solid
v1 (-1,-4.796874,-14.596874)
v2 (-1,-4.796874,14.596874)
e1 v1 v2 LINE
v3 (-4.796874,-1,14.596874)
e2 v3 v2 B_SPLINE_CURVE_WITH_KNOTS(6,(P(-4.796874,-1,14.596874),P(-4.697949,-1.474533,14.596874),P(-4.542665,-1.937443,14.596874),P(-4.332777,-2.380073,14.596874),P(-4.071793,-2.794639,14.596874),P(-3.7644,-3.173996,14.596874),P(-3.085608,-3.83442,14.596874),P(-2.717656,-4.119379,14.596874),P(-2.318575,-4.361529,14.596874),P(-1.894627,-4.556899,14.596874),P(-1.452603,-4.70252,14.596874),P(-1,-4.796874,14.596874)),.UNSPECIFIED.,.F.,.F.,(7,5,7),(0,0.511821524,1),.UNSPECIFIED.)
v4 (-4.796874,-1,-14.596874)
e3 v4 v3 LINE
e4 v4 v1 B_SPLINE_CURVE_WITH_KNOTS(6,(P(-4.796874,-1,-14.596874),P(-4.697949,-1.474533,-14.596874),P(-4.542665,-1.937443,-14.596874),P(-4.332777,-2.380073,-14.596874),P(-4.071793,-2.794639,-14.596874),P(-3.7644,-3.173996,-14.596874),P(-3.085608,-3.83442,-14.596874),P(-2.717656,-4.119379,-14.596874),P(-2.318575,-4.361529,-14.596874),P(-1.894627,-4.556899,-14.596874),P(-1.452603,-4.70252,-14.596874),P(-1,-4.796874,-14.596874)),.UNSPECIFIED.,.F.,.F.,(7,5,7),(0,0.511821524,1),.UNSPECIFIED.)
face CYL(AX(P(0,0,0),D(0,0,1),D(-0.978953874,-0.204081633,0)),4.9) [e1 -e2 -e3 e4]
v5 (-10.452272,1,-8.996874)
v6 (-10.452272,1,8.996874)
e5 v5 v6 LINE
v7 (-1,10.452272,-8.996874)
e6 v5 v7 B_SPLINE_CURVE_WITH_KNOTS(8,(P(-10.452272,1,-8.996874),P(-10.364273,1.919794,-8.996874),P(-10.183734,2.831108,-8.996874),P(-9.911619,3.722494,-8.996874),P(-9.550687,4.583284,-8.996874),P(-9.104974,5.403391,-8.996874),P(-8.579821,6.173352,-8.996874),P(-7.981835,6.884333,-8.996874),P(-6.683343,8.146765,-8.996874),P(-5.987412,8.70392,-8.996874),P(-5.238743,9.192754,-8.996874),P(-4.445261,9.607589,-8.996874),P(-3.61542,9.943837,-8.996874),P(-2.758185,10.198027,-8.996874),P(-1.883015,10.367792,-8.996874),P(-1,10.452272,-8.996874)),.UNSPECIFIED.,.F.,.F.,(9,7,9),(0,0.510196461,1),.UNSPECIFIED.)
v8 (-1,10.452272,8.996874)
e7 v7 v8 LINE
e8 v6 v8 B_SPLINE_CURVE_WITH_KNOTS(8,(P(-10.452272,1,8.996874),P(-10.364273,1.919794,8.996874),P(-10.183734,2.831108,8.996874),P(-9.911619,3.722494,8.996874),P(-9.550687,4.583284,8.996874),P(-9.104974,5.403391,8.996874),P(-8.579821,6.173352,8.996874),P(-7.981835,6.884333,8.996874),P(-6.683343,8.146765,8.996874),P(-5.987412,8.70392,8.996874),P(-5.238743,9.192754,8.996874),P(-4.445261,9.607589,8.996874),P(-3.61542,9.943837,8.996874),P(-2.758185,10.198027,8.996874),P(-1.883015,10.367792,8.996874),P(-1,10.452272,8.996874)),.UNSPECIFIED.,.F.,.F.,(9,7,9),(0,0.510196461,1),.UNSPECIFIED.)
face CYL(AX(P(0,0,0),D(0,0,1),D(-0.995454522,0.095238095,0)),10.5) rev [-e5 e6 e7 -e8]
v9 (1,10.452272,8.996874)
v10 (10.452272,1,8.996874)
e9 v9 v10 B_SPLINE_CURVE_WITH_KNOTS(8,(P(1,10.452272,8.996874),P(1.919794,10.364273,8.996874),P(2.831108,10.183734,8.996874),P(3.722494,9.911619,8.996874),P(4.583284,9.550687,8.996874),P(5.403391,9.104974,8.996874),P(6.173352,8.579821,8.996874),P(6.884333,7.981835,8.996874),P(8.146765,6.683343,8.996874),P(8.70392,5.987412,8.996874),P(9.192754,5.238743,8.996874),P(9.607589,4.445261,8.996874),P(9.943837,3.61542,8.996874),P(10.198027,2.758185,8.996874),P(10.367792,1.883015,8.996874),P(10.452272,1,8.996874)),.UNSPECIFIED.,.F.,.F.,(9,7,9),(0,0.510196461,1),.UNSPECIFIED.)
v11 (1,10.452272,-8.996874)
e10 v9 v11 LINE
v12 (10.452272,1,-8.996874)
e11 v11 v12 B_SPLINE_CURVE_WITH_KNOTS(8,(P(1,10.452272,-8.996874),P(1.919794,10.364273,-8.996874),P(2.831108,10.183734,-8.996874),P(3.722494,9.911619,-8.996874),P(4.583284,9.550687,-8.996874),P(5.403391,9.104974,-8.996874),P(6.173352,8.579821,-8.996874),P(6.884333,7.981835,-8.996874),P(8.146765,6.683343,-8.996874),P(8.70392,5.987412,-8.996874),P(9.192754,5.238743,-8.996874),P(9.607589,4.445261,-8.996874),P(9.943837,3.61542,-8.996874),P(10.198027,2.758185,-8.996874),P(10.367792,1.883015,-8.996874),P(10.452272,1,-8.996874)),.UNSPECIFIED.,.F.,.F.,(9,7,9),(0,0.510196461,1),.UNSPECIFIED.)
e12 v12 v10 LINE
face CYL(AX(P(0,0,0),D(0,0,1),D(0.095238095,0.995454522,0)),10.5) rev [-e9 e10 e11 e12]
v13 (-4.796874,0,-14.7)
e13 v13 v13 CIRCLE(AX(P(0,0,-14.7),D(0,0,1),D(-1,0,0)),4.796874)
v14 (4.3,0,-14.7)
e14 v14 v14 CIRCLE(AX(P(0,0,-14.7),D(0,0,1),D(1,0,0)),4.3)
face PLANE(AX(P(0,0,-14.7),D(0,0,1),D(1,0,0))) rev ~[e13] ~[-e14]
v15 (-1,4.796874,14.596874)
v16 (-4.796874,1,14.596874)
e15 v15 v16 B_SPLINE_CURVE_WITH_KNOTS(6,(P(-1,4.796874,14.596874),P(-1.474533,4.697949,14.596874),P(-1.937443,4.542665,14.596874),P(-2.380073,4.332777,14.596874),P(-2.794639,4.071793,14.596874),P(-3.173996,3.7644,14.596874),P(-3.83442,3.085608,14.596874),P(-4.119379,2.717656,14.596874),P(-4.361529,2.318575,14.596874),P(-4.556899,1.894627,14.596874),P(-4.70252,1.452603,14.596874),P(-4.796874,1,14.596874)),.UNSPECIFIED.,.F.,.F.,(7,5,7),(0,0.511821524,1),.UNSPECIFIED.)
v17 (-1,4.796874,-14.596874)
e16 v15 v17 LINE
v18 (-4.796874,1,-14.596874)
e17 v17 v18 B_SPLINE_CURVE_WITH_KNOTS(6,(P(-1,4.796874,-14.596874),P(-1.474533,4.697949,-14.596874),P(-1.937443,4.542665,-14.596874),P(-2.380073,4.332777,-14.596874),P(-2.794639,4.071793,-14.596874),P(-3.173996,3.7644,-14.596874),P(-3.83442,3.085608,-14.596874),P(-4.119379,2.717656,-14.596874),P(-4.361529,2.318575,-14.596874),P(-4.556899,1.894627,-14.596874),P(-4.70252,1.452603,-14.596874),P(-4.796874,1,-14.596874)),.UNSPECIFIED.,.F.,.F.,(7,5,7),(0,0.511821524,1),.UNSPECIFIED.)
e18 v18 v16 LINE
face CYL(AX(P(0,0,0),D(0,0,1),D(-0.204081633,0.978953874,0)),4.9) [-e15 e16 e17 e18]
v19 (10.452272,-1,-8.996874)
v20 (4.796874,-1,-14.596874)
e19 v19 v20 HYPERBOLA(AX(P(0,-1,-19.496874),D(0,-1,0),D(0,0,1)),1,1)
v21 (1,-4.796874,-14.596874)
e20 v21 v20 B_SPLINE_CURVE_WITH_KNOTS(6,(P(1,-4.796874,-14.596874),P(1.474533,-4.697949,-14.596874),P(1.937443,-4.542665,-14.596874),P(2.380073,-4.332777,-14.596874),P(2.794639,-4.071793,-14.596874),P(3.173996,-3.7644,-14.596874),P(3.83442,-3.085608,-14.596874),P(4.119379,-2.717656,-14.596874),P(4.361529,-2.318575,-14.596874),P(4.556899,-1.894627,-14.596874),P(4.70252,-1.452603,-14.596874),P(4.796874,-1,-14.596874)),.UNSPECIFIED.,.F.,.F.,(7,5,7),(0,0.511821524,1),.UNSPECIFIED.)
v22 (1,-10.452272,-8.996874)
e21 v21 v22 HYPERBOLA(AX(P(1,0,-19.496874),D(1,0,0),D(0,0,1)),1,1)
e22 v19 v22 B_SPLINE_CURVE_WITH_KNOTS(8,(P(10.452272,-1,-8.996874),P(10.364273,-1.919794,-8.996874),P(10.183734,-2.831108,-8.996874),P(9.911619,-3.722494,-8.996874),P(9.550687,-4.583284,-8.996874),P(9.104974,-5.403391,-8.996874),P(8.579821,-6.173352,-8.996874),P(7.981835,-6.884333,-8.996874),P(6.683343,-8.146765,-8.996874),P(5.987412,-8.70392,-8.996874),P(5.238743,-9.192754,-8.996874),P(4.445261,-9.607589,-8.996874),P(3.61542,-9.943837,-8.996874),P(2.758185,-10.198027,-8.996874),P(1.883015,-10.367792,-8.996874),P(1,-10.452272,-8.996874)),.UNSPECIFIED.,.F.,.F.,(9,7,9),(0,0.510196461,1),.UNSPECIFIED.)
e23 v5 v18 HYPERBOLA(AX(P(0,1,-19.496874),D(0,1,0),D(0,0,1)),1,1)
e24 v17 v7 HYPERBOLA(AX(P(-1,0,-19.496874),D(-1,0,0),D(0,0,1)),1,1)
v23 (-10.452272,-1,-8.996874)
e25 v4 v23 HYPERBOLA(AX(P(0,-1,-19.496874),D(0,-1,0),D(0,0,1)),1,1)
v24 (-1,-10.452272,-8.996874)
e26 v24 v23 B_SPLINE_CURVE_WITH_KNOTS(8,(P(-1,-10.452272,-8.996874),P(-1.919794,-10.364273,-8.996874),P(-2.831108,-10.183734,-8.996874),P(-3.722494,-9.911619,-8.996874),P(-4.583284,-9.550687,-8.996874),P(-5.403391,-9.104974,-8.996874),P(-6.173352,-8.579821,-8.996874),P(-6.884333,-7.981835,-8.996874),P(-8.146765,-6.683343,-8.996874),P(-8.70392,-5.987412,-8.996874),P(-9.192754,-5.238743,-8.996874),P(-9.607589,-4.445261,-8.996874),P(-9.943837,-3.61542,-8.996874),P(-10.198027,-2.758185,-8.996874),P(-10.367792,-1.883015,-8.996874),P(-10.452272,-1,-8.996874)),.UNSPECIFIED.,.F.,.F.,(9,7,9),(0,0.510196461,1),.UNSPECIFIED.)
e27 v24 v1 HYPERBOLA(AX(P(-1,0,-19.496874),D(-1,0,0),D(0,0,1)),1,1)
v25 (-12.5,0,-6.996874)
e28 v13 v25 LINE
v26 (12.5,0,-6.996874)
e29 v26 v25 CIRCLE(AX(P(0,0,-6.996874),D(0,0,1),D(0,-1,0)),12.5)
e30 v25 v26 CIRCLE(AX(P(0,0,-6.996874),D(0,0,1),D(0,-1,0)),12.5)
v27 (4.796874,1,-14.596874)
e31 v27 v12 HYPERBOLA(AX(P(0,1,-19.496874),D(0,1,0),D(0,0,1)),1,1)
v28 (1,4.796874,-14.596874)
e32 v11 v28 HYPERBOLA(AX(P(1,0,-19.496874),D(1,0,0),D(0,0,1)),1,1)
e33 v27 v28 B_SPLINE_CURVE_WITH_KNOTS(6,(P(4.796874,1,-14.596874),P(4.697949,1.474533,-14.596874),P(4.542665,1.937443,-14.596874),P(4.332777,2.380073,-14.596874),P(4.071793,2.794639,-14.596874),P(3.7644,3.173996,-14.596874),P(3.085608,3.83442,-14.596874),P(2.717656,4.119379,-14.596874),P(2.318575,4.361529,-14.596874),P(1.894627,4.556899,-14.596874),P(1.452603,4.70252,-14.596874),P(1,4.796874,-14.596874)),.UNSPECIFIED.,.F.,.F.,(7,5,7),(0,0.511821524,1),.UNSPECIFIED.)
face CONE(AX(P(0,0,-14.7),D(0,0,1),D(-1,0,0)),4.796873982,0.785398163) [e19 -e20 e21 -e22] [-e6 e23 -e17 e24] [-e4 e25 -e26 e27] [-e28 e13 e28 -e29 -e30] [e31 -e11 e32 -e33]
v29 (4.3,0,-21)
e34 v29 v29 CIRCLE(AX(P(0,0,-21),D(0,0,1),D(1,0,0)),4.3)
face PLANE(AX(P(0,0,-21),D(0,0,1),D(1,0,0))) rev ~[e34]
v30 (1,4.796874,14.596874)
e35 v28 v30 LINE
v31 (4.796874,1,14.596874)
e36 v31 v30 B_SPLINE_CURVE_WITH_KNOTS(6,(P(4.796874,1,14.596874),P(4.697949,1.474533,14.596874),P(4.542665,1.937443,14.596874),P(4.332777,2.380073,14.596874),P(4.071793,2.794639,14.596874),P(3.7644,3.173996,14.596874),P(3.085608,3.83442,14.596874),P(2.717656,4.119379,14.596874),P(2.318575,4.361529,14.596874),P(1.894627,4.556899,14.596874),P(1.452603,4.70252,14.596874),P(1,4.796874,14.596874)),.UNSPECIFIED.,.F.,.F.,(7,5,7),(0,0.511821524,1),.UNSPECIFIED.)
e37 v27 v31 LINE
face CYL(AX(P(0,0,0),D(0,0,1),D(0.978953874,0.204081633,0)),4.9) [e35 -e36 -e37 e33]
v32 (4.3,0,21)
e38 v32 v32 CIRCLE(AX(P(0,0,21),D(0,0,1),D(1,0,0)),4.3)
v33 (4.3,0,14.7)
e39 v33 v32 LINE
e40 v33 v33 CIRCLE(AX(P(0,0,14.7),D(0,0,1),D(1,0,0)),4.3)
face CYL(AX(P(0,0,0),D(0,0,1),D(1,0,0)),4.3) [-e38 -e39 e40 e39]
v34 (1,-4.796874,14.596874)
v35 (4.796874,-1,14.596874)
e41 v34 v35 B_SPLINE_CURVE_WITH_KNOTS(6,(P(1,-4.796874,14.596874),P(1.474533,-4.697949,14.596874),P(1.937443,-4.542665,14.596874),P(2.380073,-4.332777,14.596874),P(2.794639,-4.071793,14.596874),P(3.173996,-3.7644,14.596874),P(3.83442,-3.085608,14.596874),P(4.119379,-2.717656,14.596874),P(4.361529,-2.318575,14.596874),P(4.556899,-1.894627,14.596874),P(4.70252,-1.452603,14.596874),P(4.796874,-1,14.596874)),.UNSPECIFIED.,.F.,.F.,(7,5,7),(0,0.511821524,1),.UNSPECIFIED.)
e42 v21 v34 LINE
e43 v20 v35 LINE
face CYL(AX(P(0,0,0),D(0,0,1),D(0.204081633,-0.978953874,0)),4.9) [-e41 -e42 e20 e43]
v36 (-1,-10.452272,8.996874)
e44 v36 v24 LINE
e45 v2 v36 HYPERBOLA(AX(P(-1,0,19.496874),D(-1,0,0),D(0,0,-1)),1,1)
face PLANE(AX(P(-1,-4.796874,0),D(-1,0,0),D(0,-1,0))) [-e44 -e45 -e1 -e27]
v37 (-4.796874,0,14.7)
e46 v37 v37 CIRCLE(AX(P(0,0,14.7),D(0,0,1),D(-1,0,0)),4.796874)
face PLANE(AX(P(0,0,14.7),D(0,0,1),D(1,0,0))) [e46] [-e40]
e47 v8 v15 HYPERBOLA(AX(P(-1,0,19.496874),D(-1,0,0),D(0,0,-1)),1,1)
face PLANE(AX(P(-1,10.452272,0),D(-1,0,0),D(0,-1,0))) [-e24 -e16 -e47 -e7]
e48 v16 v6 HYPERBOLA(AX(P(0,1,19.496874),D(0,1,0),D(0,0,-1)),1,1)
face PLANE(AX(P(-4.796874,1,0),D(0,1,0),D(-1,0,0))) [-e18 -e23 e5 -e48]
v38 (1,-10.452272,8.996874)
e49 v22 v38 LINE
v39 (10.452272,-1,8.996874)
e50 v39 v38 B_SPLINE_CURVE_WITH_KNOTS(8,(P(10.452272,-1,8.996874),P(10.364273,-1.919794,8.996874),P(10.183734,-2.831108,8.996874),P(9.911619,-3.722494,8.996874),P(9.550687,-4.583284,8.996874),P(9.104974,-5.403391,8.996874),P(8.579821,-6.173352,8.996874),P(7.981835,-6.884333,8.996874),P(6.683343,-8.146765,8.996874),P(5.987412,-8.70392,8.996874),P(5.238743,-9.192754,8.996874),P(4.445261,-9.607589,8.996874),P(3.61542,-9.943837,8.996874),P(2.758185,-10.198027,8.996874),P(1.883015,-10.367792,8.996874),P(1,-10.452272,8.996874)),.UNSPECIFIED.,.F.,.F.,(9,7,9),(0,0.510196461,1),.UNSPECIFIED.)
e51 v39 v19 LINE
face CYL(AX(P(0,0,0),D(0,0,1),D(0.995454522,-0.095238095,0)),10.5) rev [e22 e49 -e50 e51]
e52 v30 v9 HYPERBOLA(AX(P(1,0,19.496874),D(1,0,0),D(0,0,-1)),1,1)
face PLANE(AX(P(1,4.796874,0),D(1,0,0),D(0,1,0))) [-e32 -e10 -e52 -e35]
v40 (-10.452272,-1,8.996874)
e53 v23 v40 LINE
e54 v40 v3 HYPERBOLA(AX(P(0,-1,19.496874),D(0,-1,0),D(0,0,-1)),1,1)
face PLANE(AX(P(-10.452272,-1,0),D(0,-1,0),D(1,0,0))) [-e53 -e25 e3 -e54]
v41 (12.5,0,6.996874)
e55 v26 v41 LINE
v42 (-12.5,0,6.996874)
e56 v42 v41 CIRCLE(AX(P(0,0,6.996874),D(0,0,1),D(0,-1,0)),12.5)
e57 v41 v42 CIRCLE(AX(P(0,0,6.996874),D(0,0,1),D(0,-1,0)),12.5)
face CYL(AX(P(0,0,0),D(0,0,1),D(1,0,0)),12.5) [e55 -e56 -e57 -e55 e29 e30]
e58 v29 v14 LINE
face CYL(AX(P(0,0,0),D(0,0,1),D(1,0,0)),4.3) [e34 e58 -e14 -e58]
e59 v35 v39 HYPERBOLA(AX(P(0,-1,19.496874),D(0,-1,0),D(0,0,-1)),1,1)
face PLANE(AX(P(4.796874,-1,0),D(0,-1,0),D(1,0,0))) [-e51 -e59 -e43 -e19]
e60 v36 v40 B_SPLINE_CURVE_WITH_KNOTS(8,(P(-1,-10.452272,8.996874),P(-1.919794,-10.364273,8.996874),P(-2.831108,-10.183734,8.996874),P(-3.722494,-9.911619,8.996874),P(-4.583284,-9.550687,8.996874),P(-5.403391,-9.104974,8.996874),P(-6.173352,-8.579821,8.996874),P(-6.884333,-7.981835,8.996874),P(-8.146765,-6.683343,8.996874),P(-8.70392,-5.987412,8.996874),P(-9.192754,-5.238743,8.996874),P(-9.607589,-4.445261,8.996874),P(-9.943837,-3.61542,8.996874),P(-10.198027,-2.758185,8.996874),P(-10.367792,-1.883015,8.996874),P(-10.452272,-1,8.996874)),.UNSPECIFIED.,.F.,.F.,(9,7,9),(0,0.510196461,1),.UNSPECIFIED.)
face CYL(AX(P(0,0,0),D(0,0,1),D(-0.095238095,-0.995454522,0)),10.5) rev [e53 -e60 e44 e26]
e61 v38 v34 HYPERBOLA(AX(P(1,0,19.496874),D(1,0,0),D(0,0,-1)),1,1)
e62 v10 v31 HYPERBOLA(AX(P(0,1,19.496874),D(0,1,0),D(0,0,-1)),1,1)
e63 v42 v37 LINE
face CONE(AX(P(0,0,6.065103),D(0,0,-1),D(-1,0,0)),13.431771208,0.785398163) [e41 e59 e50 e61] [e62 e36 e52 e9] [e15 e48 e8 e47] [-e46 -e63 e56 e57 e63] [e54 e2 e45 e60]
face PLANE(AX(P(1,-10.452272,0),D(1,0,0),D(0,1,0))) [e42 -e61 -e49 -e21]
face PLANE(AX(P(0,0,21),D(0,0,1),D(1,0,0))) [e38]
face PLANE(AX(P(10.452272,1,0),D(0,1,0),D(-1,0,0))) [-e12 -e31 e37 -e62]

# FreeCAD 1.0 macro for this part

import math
import FreeCAD as App
import Part
import Sketcher
from FreeCAD import Vector

doc = App.newDocument("Part")
params = doc.addObject("Spreadsheet::Sheet", "Params")
for row, (alias, value) in enumerate([
    ("sketch1_diameter", "8.6 mm"),
    ("pad1_length", "42 mm"),
    ("sketch2_diameter", "25 mm"),
    ("sketch2_diameter2", "8.6 mm"),
    ("sketch2_radius", "10.5 mm"),
    ("sketch2_radius2", "4.9 mm"),
    ("pad2_length", "29.4 mm"),
    ("groove_angle", "360 deg"),
], start=1):
    params.set(f"A{row}", alias)
    params.set(f"B{row}", "=" + value)
    params.setAlias(f"B{row}", alias)

body = doc.addObject("PartDesign::Body", "Body")

# Sketch on XY plane
sketch1 = doc.addObject("Sketcher::SketchObject", "Sketch")
body.addObject(sketch1)
sketch1.AttachmentSupport = (doc.XY_Plane, [""])
sketch1.MapMode = "FlatFace"
sketch1.addGeometry(Part.Circle(Vector(0, 0, 0), Vector(0, 0, 1), 4.3), False)
sketch1.addConstraint(Sketcher.Constraint("Coincident", 0, 3, -1, 1))
sketch1.addConstraint(Sketcher.Constraint("Diameter", 0, 8.6))
sketch1.setExpression("Constraints[1]", "Params.sketch1_diameter")
pad1 = doc.addObject("PartDesign::Pad", "Pad")
body.addObject(pad1)
pad1.Profile = sketch1
pad1.setExpression("Length", "Params.pad1_length")
pad1.Midplane = True

# Sketch on XY plane
sketch2 = doc.addObject("Sketcher::SketchObject", "Sketch001")
body.addObject(sketch2)
sketch2.AttachmentSupport = (doc.XY_Plane, [""])
sketch2.MapMode = "FlatFace"
sketch2.addGeometry(Part.Circle(Vector(0, 0, 0), Vector(0, 0, 1), 12.5), False)
sketch2.addGeometry(Part.ArcOfCircle(Part.Circle(Vector(0, 0, 0), Vector(0, 0, 1), 10.5), math.radians(5), math.radians(85)), False)
sketch2.addGeometry(Part.LineSegment(Vector(10.5, 1, 0), Vector(4.8, 1, 0)), False)
sketch2.addGeometry(Part.ArcOfCircle(Part.Circle(Vector(0, 0, 0), Vector(0, 0, 1), 4.9), math.radians(12), math.radians(78)), False)
sketch2.addGeometry(Part.LineSegment(Vector(1, 4.8, 0), Vector(1, 10.5, 0)), False)
sketch2.addGeometry(Part.ArcOfCircle(Part.Circle(Vector(0, 0, 0), Vector(0, 0, 1), 4.9), math.radians(102), math.radians(168)), False)
sketch2.addGeometry(Part.LineSegment(Vector(-4.8, 1, 0), Vector(-10.5, 1, 0)), False)
sketch2.addGeometry(Part.ArcOfCircle(Part.Circle(Vector(0, 0, 0), Vector(0, 0, 1), 10.5), math.radians(95), math.radians(175)), False)
sketch2.addGeometry(Part.LineSegment(Vector(-1, 10.5, 0), Vector(-1, 4.8, 0)), False)
sketch2.addGeometry(Part.ArcOfCircle(Part.Circle(Vector(0, 0, 0), Vector(0, 0, 1), 10.5), math.radians(-85), math.radians(-5)), False)
sketch2.addGeometry(Part.LineSegment(Vector(1, -10.5, 0), Vector(1, -4.8, 0)), False)
sketch2.addGeometry(Part.ArcOfCircle(Part.Circle(Vector(0, 0, 0), Vector(0, 0, 1), 4.9), math.radians(-78), math.radians(-12)), False)
sketch2.addGeometry(Part.LineSegment(Vector(4.8, -1, 0), Vector(10.5, -1, 0)), False)
sketch2.addGeometry(Part.ArcOfCircle(Part.Circle(Vector(0, 0, 0), Vector(0, 0, 1), 10.5), math.radians(-175), math.radians(-95)), False)
sketch2.addGeometry(Part.LineSegment(Vector(-10.5, -1, 0), Vector(-4.8, -1, 0)), False)
sketch2.addGeometry(Part.ArcOfCircle(Part.Circle(Vector(0, 0, 0), Vector(0, 0, 1), 4.9), math.radians(-168), math.radians(-102)), False)
sketch2.addGeometry(Part.LineSegment(Vector(-1, -4.8, 0), Vector(-1, -10.5, 0)), False)
sketch2.addGeometry(Part.Circle(Vector(0, 0, 0), Vector(0, 0, 1), 4.3), False)
sketch2.addConstraint(Sketcher.Constraint("Coincident", 1, 1, 2, 1))
sketch2.addConstraint(Sketcher.Constraint("Coincident", 2, 2, 3, 1))
sketch2.addConstraint(Sketcher.Constraint("Coincident", 3, 2, 4, 1))
sketch2.addConstraint(Sketcher.Constraint("Coincident", 4, 2, 1, 2))
sketch2.addConstraint(Sketcher.Constraint("Coincident", 5, 2, 6, 1))
sketch2.addConstraint(Sketcher.Constraint("Coincident", 6, 2, 7, 2))
sketch2.addConstraint(Sketcher.Constraint("Coincident", 7, 1, 8, 1))
sketch2.addConstraint(Sketcher.Constraint("Coincident", 8, 2, 5, 1))
sketch2.addConstraint(Sketcher.Constraint("Coincident", 9, 1, 10, 1))
sketch2.addConstraint(Sketcher.Constraint("Coincident", 10, 2, 11, 1))
sketch2.addConstraint(Sketcher.Constraint("Coincident", 11, 2, 12, 1))
sketch2.addConstraint(Sketcher.Constraint("Coincident", 12, 2, 9, 2))
sketch2.addConstraint(Sketcher.Constraint("Coincident", 13, 1, 14, 1))
sketch2.addConstraint(Sketcher.Constraint("Coincident", 14, 2, 15, 1))
sketch2.addConstraint(Sketcher.Constraint("Coincident", 15, 2, 16, 1))
sketch2.addConstraint(Sketcher.Constraint("Coincident", 16, 2, 13, 2))
sketch2.addConstraint(Sketcher.Constraint("Horizontal", 2))
sketch2.addConstraint(Sketcher.Constraint("Vertical", 4))
sketch2.addConstraint(Sketcher.Constraint("Horizontal", 6))
sketch2.addConstraint(Sketcher.Constraint("Vertical", 8))
sketch2.addConstraint(Sketcher.Constraint("Vertical", 10))
sketch2.addConstraint(Sketcher.Constraint("Horizontal", 12))
sketch2.addConstraint(Sketcher.Constraint("Horizontal", 14))
sketch2.addConstraint(Sketcher.Constraint("Vertical", 16))
sketch2.addConstraint(Sketcher.Constraint("Coincident", 0, 3, -1, 1))
sketch2.addConstraint(Sketcher.Constraint("Coincident", 1, 3, -1, 1))
sketch2.addConstraint(Sketcher.Constraint("Coincident", 3, 3, -1, 1))
sketch2.addConstraint(Sketcher.Constraint("Coincident", 5, 3, -1, 1))
sketch2.addConstraint(Sketcher.Constraint("Coincident", 7, 3, -1, 1))
sketch2.addConstraint(Sketcher.Constraint("Coincident", 9, 3, -1, 1))
sketch2.addConstraint(Sketcher.Constraint("Coincident", 11, 3, -1, 1))
sketch2.addConstraint(Sketcher.Constraint("Coincident", 13, 3, -1, 1))
sketch2.addConstraint(Sketcher.Constraint("Coincident", 15, 3, -1, 1))
sketch2.addConstraint(Sketcher.Constraint("Coincident", 17, 3, -1, 1))
sketch2.addConstraint(Sketcher.Constraint("Equal", 3, 5))
sketch2.addConstraint(Sketcher.Constraint("Equal", 1, 7))
sketch2.addConstraint(Sketcher.Constraint("Equal", 7, 9))
sketch2.addConstraint(Sketcher.Constraint("Equal", 5, 11))
sketch2.addConstraint(Sketcher.Constraint("Equal", 9, 13))
sketch2.addConstraint(Sketcher.Constraint("Equal", 11, 15))
sketch2.addConstraint(Sketcher.Constraint("Horizontal", 2, 2, 5, 2))
sketch2.addConstraint(Sketcher.Constraint("Horizontal", 4, 2, 7, 1))
sketch2.addConstraint(Sketcher.Constraint("Horizontal", 12, 2, 13, 1))
sketch2.addConstraint(Sketcher.Constraint("Horizontal", 10, 2, 15, 2))
sketch2.addConstraint(Sketcher.Constraint("Vertical", 4, 2, 9, 1))
sketch2.addConstraint(Sketcher.Constraint("Vertical", 2, 2, 11, 2))
sketch2.addConstraint(Sketcher.Constraint("Equal", 14, 4))
sketch2.addConstraint(Sketcher.Constraint("Diameter", 0, 25.0))
sketch2.addConstraint(Sketcher.Constraint("Diameter", 17, 8.6))
sketch2.addConstraint(Sketcher.Constraint("Radius", 1, 10.5))
sketch2.addConstraint(Sketcher.Constraint("Radius", 3, 4.9))
sketch2.addConstraint(Sketcher.Constraint("DistanceY", -1, 1, 1, 1, 1.0))
sketch2.setExpression("Constraints[47]", "Params.sketch2_diameter")
sketch2.setExpression("Constraints[48]", "Params.sketch2_diameter2")
sketch2.setExpression("Constraints[49]", "Params.sketch2_radius")
sketch2.setExpression("Constraints[50]", "Params.sketch2_radius2")
pad2 = doc.addObject("PartDesign::Pad", "Pad001")
body.addObject(pad2)
pad2.Profile = sketch2
pad2.setExpression("Length", "Params.pad2_length")
pad2.Midplane = True

# Sketch on XZ plane
sketch3 = doc.addObject("Sketcher::SketchObject", "Sketch002")
body.addObject(sketch3)
sketch3.AttachmentSupport = (doc.XZ_Plane, [""])
sketch3.MapMode = "FlatFace"
sketch3.addGeometry(Part.LineSegment(Vector(-13, 15, 0), Vector(-13, 6, 0)), False)
sketch3.addGeometry(Part.LineSegment(Vector(-13, 6, 0), Vector(-5, 15, 0)), False)
sketch3.addGeometry(Part.LineSegment(Vector(-5, 15, 0), Vector(-13, 15, 0)), False)
sketch3.addGeometry(Part.LineSegment(Vector(-13, -15, 0), Vector(-5, -15, 0)), False)
sketch3.addGeometry(Part.LineSegment(Vector(-5, -15, 0), Vector(-13, -6, 0)), False)
sketch3.addGeometry(Part.LineSegment(Vector(-13, -6, 0), Vector(-13, -15, 0)), False)
sketch3.addConstraint(Sketcher.Constraint("Coincident", 0, 2, 1, 1))
sketch3.addConstraint(Sketcher.Constraint("Coincident", 1, 2, 2, 1))
sketch3.addConstraint(Sketcher.Constraint("Coincident", 2, 2, 0, 1))
sketch3.addConstraint(Sketcher.Constraint("Coincident", 3, 2, 4, 1))
sketch3.addConstraint(Sketcher.Constraint("Coincident", 4, 2, 5, 1))
sketch3.addConstraint(Sketcher.Constraint("Coincident", 5, 2, 3, 1))
sketch3.addConstraint(Sketcher.Constraint("Vertical", 0))
sketch3.addConstraint(Sketcher.Constraint("Horizontal", 2))
sketch3.addConstraint(Sketcher.Constraint("Horizontal", 3))
sketch3.addConstraint(Sketcher.Constraint("Vertical", 5))
sketch3.addConstraint(Sketcher.Constraint("Symmetric", 1, 2, 3, 2, -1))
sketch3.addConstraint(Sketcher.Constraint("Symmetric", 0, 2, 4, 2, -1))
sketch3.addConstraint(Sketcher.Constraint("Perpendicular", 1, 4))
sketch3.addConstraint(Sketcher.Constraint("DistanceY", -1, 1, 1, 2, 14.7))
sketch3.addConstraint(Sketcher.Constraint("Distance", 1, 12.211589))
sketch3.addConstraint(Sketcher.Constraint("DistanceX", 0, 2, -1, 1, 13.431771))
groove = doc.addObject("PartDesign::Groove", "Groove")
body.addObject(groove)
groove.Profile = sketch3
groove.ReferenceAxis = (sketch3, ["V_Axis"])
groove.setExpression("Angle", "Params.groove_angle")

doc.recompute()
